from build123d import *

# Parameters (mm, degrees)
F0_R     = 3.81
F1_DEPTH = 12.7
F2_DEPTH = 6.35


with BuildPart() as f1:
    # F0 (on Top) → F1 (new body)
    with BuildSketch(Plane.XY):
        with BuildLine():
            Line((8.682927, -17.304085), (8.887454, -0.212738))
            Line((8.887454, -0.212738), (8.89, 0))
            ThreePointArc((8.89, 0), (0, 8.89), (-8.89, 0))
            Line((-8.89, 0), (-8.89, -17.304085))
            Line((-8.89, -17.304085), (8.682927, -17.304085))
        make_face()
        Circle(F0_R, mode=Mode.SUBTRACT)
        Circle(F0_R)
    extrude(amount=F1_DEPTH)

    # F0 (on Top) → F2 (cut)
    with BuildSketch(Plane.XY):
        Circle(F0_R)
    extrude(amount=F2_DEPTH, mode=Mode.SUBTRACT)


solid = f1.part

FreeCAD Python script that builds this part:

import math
import FreeCAD as App
import Part
import Sketcher
from FreeCAD import Vector
Q = App.Units.Quantity

doc = App.newDocument("Part")
body = doc.addObject("PartDesign::Body", "Body")

# Sketch on XY plane
sketch1 = body.newObject("Sketcher::SketchObject", "Sketch")
sketch1.AttachmentSupport = (doc.getObject("XY_Plane"), [""])
sketch1.MapMode = "FlatFace"
sketch1.addGeometry([
    Part.LineSegment(Vector(8.682927, -17.304085, 0), Vector(8.887454, -0.212738, 0)),  # 0
    Part.LineSegment(Vector(8.887454, -0.212738, 0), Vector(8.89, 0, 0)),  # 1
    Part.ArcOfCircle(Part.Circle(Vector(0, 0, 0), Vector(0, 0, 1), 8.89), math.radians(0), math.radians(180)),  # 2
    Part.LineSegment(Vector(-8.89, 0, 0), Vector(-8.89, -17.304085, 0)),  # 3
    Part.LineSegment(Vector(-8.89, -17.304085, 0), Vector(8.682927, -17.304085, 0)),  # 4
], False)
sketch1.addConstraint([
    Sketcher.Constraint("Coincident", 0, 2, 1, 1),
    Sketcher.Constraint("Coincident", 1, 2, 2, 1),
    Sketcher.Constraint("Tangent", 2, 2, 3, 1),
    Sketcher.Constraint("Coincident", 3, 2, 4, 1),
    Sketcher.Constraint("Coincident", 4, 2, 0, 1),
    Sketcher.Constraint("Vertical", 3),
    Sketcher.Constraint("Horizontal", 4),
    Sketcher.Constraint("Coincident", 2, 3, -1, 1),
    Sketcher.Constraint("PointOnObject", 1, 2, -1),
    Sketcher.Constraint("Parallel", 0, 1),
    Sketcher.Constraint("Radius", 2, Q("0.35 in")),
    Sketcher.Constraint("Distance", 0, 17.092571),
    Sketcher.Constraint("DistanceX", 4, 1, 4, 2, 17.572927),
    Sketcher.Constraint("DistanceY", 3, 2, 3, 1, 17.304085),
])
pad1 = body.newObject("PartDesign::Pad", "Pad")
pad1.Profile = sketch1
pad1.Length = Q("0.5 in")

# Sketch on XY plane
sketch2 = body.newObject("Sketcher::SketchObject", "Sketch001")
sketch2.AttachmentSupport = (doc.getObject("XY_Plane"), [""])
sketch2.MapMode = "FlatFace"
sketch2.addGeometry(Part.Circle(Vector(0, 0, 0), Vector(0, 0, 1), 3.81), False)
sketch2.addConstraint([
    Sketcher.Constraint("Coincident", 0, 3, -1, 1),
    Sketcher.Constraint("Diameter", 0, Q("0.3 in")),
])
pocket1 = body.newObject("PartDesign::Pocket", "Pocket")
pocket1.Profile = sketch2
pocket1.Length = Q("0.25 in")
pocket1.Reversed = True

doc.recompute()
